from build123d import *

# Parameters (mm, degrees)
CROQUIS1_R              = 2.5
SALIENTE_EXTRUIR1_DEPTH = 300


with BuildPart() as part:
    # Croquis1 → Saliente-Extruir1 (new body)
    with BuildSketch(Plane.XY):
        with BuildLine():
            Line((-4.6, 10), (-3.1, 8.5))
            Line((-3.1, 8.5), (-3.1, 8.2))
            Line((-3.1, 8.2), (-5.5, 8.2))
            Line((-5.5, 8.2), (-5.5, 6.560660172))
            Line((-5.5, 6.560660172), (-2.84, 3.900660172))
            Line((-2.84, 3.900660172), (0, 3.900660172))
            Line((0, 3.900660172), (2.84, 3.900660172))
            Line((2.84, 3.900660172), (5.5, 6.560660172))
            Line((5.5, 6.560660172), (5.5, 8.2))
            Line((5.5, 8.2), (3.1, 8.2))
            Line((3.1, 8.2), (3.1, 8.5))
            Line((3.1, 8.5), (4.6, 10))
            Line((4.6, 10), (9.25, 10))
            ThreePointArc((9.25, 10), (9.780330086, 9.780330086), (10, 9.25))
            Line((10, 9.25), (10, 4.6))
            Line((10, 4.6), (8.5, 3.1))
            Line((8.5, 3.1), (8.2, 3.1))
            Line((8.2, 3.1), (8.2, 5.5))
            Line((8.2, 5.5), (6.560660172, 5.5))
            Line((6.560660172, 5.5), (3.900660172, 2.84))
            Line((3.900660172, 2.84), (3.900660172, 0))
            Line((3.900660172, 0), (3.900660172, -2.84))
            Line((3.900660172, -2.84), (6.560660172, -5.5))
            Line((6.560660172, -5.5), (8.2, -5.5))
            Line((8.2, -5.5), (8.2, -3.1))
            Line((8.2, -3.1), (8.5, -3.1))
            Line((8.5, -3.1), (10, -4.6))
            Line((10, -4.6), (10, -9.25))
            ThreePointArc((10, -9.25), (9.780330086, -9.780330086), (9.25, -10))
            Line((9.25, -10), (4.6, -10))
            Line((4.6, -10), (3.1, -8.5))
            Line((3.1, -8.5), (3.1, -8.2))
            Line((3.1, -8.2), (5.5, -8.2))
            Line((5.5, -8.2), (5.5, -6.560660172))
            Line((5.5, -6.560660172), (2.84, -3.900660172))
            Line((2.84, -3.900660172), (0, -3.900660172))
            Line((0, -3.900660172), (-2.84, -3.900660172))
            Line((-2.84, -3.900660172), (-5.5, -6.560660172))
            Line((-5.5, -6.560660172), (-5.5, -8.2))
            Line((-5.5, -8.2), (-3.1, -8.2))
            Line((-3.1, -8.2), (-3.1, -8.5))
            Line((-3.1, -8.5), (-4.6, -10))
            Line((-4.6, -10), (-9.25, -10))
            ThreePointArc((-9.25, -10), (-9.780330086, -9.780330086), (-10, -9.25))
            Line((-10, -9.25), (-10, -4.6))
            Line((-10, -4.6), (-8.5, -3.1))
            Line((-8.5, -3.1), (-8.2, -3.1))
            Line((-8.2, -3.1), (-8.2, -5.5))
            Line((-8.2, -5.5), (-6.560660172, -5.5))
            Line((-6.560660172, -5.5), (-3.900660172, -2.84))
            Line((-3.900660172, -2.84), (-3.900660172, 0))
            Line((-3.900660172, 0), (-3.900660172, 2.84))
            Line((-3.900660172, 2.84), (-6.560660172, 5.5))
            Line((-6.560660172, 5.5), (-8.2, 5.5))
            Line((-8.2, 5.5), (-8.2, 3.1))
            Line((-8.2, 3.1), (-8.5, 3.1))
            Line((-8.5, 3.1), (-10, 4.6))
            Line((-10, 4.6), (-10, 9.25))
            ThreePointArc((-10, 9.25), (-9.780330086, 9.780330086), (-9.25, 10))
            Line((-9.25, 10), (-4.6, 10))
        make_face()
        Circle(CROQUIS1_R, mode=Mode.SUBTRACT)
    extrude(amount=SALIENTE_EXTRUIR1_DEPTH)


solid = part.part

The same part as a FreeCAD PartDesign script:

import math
import FreeCAD as App
import Part
import Sketcher

V = App.Vector
Q = App.Units.Quantity

doc = App.newDocument("Part")
body = doc.addObject("PartDesign::Body", "Body")

# Sketch on XY plane
sketch1 = body.newObject("Sketcher::SketchObject", "Sketch")
sketch1.AttachmentSupport = (doc.getObject("XY_Plane"), [""])
sketch1.MapMode = "FlatFace"
sketch1.addGeometry([
    Part.LineSegment(V(-3.1, 8.5, 0), V(-4.6, 10, 0)),  # 0
    Part.LineSegment(V(-4.6, 10, 0), V(-9.25, 10, 0)),  # 1
    Part.ArcOfCircle(Part.Circle(V(-9.25, 9.25, 0), V(0, 0, 1), 0.75), math.radians(90), math.radians(180)),  # 2
    Part.LineSegment(V(-10, 9.25, 0), V(-10, 4.6, 0)),  # 3
    Part.LineSegment(V(-10, 4.6, 0), V(-8.5, 3.1, 0)),  # 4
    Part.LineSegment(V(-8.5, 3.1, 0), V(-8.2, 3.1, 0)),  # 5
    Part.LineSegment(V(-8.2, 3.1, 0), V(-8.2, 5.5, 0)),  # 6
    Part.LineSegment(V(-8.2, 5.5, 0), V(-6.56, 5.5, 0)),  # 7
    Part.LineSegment(V(-6.56, 5.5, 0), V(-3.9, 2.84, 0)),  # 8
    Part.LineSegment(V(-3.9, 2.84, 0), V(-3.9, -2.84, 0)),  # 9
    Part.LineSegment(V(-3.9, -2.84, 0), V(-6.56, -5.5, 0)),  # 10
    Part.LineSegment(V(-6.56, -5.5, 0), V(-8.2, -5.5, 0)),  # 11
    Part.LineSegment(V(-8.2, -5.5, 0), V(-8.2, -3.1, 0)),  # 12
    Part.LineSegment(V(-8.2, -3.1, 0), V(-8.5, -3.1, 0)),  # 13
    Part.LineSegment(V(-8.5, -3.1, 0), V(-10, -4.6, 0)),  # 14
    Part.LineSegment(V(-10, -4.6, 0), V(-10, -9.25, 0)),  # 15
    Part.ArcOfCircle(Part.Circle(V(-9.25, -9.25, 0), V(0, 0, 1), 0.75), math.radians(180), math.radians(270)),  # 16
    Part.LineSegment(V(-9.25, -10, 0), V(-4.6, -10, 0)),  # 17
    Part.LineSegment(V(-4.6, -10, 0), V(-3.1, -8.5, 0)),  # 18
    Part.LineSegment(V(-3.1, -8.5, 0), V(-3.1, -8.2, 0)),  # 19
    Part.LineSegment(V(-3.1, -8.2, 0), V(-5.5, -8.2, 0)),  # 20
    Part.LineSegment(V(-5.5, -8.2, 0), V(-5.5, -6.56, 0)),  # 21
    Part.LineSegment(V(-5.5, -6.56, 0), V(-2.84, -3.9, 0)),  # 22
    Part.LineSegment(V(-2.84, -3.9, 0), V(2.84, -3.9, 0)),  # 23
    Part.LineSegment(V(2.84, -3.9, 0), V(5.5, -6.56, 0)),  # 24
    Part.LineSegment(V(5.5, -6.56, 0), V(5.5, -8.2, 0)),  # 25
    Part.LineSegment(V(5.5, -8.2, 0), V(3.1, -8.2, 0)),  # 26
    Part.LineSegment(V(3.1, -8.2, 0), V(3.1, -8.5, 0)),  # 27
    Part.LineSegment(V(3.1, -8.5, 0), V(4.6, -10, 0)),  # 28
    Part.LineSegment(V(4.6, -10, 0), V(9.25, -10, 0)),  # 29
    Part.ArcOfCircle(Part.Circle(V(9.25, -9.25, 0), V(0, 0, 1), 0.75), math.radians(-90), math.radians(0)),  # 30
    Part.LineSegment(V(10, -9.25, 0), V(10, -4.6, 0)),  # 31
    Part.LineSegment(V(10, -4.6, 0), V(8.5, -3.1, 0)),  # 32
    Part.LineSegment(V(8.5, -3.1, 0), V(8.2, -3.1, 0)),  # 33
    Part.LineSegment(V(8.2, -3.1, 0), V(8.2, -5.5, 0)),  # 34
    Part.LineSegment(V(8.2, -5.5, 0), V(6.56, -5.5, 0)),  # 35
    Part.LineSegment(V(6.56, -5.5, 0), V(3.9, -2.84, 0)),  # 36
    Part.LineSegment(V(3.9, -2.84, 0), V(3.9, 2.84, 0)),  # 37
    Part.LineSegment(V(3.9, 2.84, 0), V(6.56, 5.5, 0)),  # 38
    Part.LineSegment(V(6.56, 5.5, 0), V(8.2, 5.5, 0)),  # 39
    Part.LineSegment(V(8.2, 5.5, 0), V(8.2, 3.1, 0)),  # 40
    Part.LineSegment(V(8.2, 3.1, 0), V(8.5, 3.1, 0)),  # 41
    Part.LineSegment(V(8.5, 3.1, 0), V(10, 4.6, 0)),  # 42
    Part.LineSegment(V(10, 4.6, 0), V(10, 9.25, 0)),  # 43
    Part.ArcOfCircle(Part.Circle(V(9.25, 9.25, 0), V(0, 0, 1), 0.75), math.radians(0), math.radians(90)),  # 44
    Part.LineSegment(V(9.25, 10, 0), V(4.6, 10, 0)),  # 45
    Part.LineSegment(V(4.6, 10, 0), V(3.1, 8.5, 0)),  # 46
    Part.LineSegment(V(3.1, 8.5, 0), V(3.1, 8.2, 0)),  # 47
    Part.LineSegment(V(3.1, 8.2, 0), V(5.5, 8.2, 0)),  # 48
    Part.LineSegment(V(5.5, 8.2, 0), V(5.5, 6.56, 0)),  # 49
    Part.LineSegment(V(5.5, 6.56, 0), V(2.84, 3.9, 0)),  # 50
    Part.LineSegment(V(2.84, 3.9, 0), V(-2.84, 3.9, 0)),  # 51
    Part.LineSegment(V(-2.84, 3.9, 0), V(-5.5, 6.56, 0)),  # 52
    Part.LineSegment(V(-5.5, 6.56, 0), V(-5.5, 8.2, 0)),  # 53
    Part.LineSegment(V(-5.5, 8.2, 0), V(-3.1, 8.2, 0)),  # 54
    Part.LineSegment(V(-3.1, 8.2, 0), V(-3.1, 8.5, 0)),  # 55
    Part.Circle(V(0, 0, 0), V(0, 0, 1), 2.5),  # 56
], False)
sketch1.addConstraint([
    Sketcher.Constraint("Coincident", 0, 2, 1, 1),
    Sketcher.Constraint("Tangent", 1, 2, 2, 1),
    Sketcher.Constraint("Tangent", 2, 2, 3, 1),
    Sketcher.Constraint("Coincident", 3, 2, 4, 1),
    Sketcher.Constraint("Coincident", 4, 2, 5, 1),
    Sketcher.Constraint("Coincident", 5, 2, 6, 1),
    Sketcher.Constraint("Coincident", 6, 2, 7, 1),
    Sketcher.Constraint("Coincident", 7, 2, 8, 1),
    Sketcher.Constraint("Coincident", 8, 2, 9, 1),
    Sketcher.Constraint("Coincident", 9, 2, 10, 1),
    Sketcher.Constraint("Coincident", 10, 2, 11, 1),
    Sketcher.Constraint("Coincident", 11, 2, 12, 1),
    Sketcher.Constraint("Coincident", 12, 2, 13, 1),
    Sketcher.Constraint("Coincident", 13, 2, 14, 1),
    Sketcher.Constraint("Coincident", 14, 2, 15, 1),
    Sketcher.Constraint("Tangent", 15, 2, 16, 1),
    Sketcher.Constraint("Tangent", 16, 2, 17, 1),
    Sketcher.Constraint("Coincident", 17, 2, 18, 1),
    Sketcher.Constraint("Coincident", 18, 2, 19, 1),
    Sketcher.Constraint("Coincident", 19, 2, 20, 1),
    Sketcher.Constraint("Coincident", 20, 2, 21, 1),
    Sketcher.Constraint("Coincident", 21, 2, 22, 1),
    Sketcher.Constraint("Coincident", 22, 2, 23, 1),
    Sketcher.Constraint("Coincident", 23, 2, 24, 1),
    Sketcher.Constraint("Coincident", 24, 2, 25, 1),
    Sketcher.Constraint("Coincident", 25, 2, 26, 1),
    Sketcher.Constraint("Coincident", 26, 2, 27, 1),
    Sketcher.Constraint("Coincident", 27, 2, 28, 1),
    Sketcher.Constraint("Coincident", 28, 2, 29, 1),
    Sketcher.Constraint("Tangent", 29, 2, 30, 1),
    Sketcher.Constraint("Tangent", 30, 2, 31, 1),
    Sketcher.Constraint("Coincident", 31, 2, 32, 1),
    Sketcher.Constraint("Coincident", 32, 2, 33, 1),
    Sketcher.Constraint("Coincident", 33, 2, 34, 1),
    Sketcher.Constraint("Coincident", 34, 2, 35, 1),
    Sketcher.Constraint("Coincident", 35, 2, 36, 1),
    Sketcher.Constraint("Coincident", 36, 2, 37, 1),
    Sketcher.Constraint("Coincident", 37, 2, 38, 1),
    Sketcher.Constraint("Coincident", 38, 2, 39, 1),
    Sketcher.Constraint("Coincident", 39, 2, 40, 1),
    Sketcher.Constraint("Coincident", 40, 2, 41, 1),
    Sketcher.Constraint("Coincident", 41, 2, 42, 1),
    Sketcher.Constraint("Coincident", 42, 2, 43, 1),
    Sketcher.Constraint("Tangent", 43, 2, 44, 1),
    Sketcher.Constraint("Tangent", 44, 2, 45, 1),
    Sketcher.Constraint("Coincident", 45, 2, 46, 1),
    Sketcher.Constraint("Coincident", 46, 2, 47, 1),
    Sketcher.Constraint("Coincident", 47, 2, 48, 1),
    Sketcher.Constraint("Coincident", 48, 2, 49, 1),
    Sketcher.Constraint("Coincident", 49, 2, 50, 1),
    Sketcher.Constraint("Coincident", 50, 2, 51, 1),
    Sketcher.Constraint("Coincident", 51, 2, 52, 1),
    Sketcher.Constraint("Coincident", 52, 2, 53, 1),
    Sketcher.Constraint("Coincident", 53, 2, 54, 1),
    Sketcher.Constraint("Coincident", 54, 2, 55, 1),
    Sketcher.Constraint("Coincident", 55, 2, 0, 1),
    Sketcher.Constraint("Horizontal", 1),
    Sketcher.Constraint("Vertical", 3),
    Sketcher.Constraint("Horizontal", 5),
    Sketcher.Constraint("Vertical", 6),
    Sketcher.Constraint("Horizontal", 7),
    Sketcher.Constraint("Vertical", 9),
    Sketcher.Constraint("Horizontal", 11),
    Sketcher.Constraint("Vertical", 12),
    Sketcher.Constraint("Horizontal", 13),
    Sketcher.Constraint("Vertical", 15),
    Sketcher.Constraint("Horizontal", 17),
    Sketcher.Constraint("Vertical", 19),
    Sketcher.Constraint("Horizontal", 20),
    Sketcher.Constraint("Vertical", 21),
    Sketcher.Constraint("Horizontal", 23),
    Sketcher.Constraint("Vertical", 25),
    Sketcher.Constraint("Horizontal", 26),
    Sketcher.Constraint("Vertical", 27),
    Sketcher.Constraint("Horizontal", 29),
    Sketcher.Constraint("Vertical", 31),
    Sketcher.Constraint("Horizontal", 33),
    Sketcher.Constraint("Vertical", 34),
    Sketcher.Constraint("Horizontal", 35),
    Sketcher.Constraint("Vertical", 37),
    Sketcher.Constraint("Horizontal", 39),
    Sketcher.Constraint("Vertical", 40),
    Sketcher.Constraint("Horizontal", 41),
    Sketcher.Constraint("Vertical", 43),
    Sketcher.Constraint("Horizontal", 45),
    Sketcher.Constraint("Vertical", 47),
    Sketcher.Constraint("Horizontal", 48),
    Sketcher.Constraint("Vertical", 49),
    Sketcher.Constraint("Horizontal", 51),
    Sketcher.Constraint("Vertical", 53),
    Sketcher.Constraint("Horizontal", 54),
    Sketcher.Constraint("Vertical", 55),
    Sketcher.Constraint("Coincident", 56, 3, -1, 1),
    Sketcher.Constraint("Equal", 2, 16),
    Sketcher.Constraint("Equal", 16, 30),
    Sketcher.Constraint("Equal", 30, 44),
    Sketcher.Constraint("Symmetric", 2, 3, 30, 3, -1, 1),
    Sketcher.Constraint("Symmetric", 16, 3, 44, 3, -1, 1),
    Sketcher.Constraint("Symmetric", 4, 2, 32, 2, -1, 1),
    Sketcher.Constraint("Symmetric", 6, 2, 34, 2, -1, 1),
    Sketcher.Constraint("Symmetric", 8, 2, 36, 2, -1, 1),
    Sketcher.Constraint("Symmetric", 10, 2, 38, 2, -1, 1),
    Sketcher.Constraint("Symmetric", 12, 2, 40, 2, -1, 1),
    Sketcher.Constraint("Symmetric", 18, 2, 46, 2, -1, 1),
    Sketcher.Constraint("Symmetric", 20, 2, 48, 2, -1, 1),
    Sketcher.Constraint("Symmetric", 22, 2, 50, 2, -1, 1),
    Sketcher.Constraint("Symmetric", 24, 2, 52, 2, -1, 1),
    Sketcher.Constraint("Symmetric", 26, 2, 54, 2, -1, 1),
    Sketcher.Constraint("Symmetric", 16, 3, 30, 3, -2),
    Sketcher.Constraint("Symmetric", 21, 2, 24, 2, -2),
    Sketcher.Constraint("Symmetric", 19, 2, 26, 2, -2),
    Sketcher.Constraint("Symmetric", 13, 2, 32, 2, -2),
    Sketcher.Constraint("Symmetric", 11, 2, 34, 2, -2),
    Sketcher.Constraint("Parallel", 0, 4),
    Sketcher.Constraint("Parallel", 4, 8),
    Sketcher.Constraint("Perpendicular", 8, 10),
    Sketcher.Constraint("Parallel", 10, 14),
    Sketcher.Constraint("Parallel", 14, 18),
    Sketcher.Constraint("Parallel", 18, 22),
    Sketcher.Constraint("Perpendicular", 22, 24),
    Sketcher.Constraint("Parallel", 24, 28),
    Sketcher.Constraint("Parallel", 28, 32),
    Sketcher.Constraint("Parallel", 32, 36),
    Sketcher.Constraint("Perpendicular", 36, 38),
    Sketcher.Constraint("Parallel", 38, 42),
    Sketcher.Constraint("Parallel", 42, 46),
    Sketcher.Constraint("Parallel", 46, 50),
    Sketcher.Constraint("Perpendicular", 50, 52),
    Sketcher.Constraint("Horizontal", 18, 2, 27, 2),
    Sketcher.Constraint("Horizontal", 14, 2, 31, 2),
    Sketcher.Constraint("Horizontal", 9, 2, 36, 2),
    Sketcher.Constraint("Horizontal", 3, 2, 42, 2),
    Sketcher.Constraint("Horizontal", 46, 2, 55, 2),
    Sketcher.Constraint("Equal", 45, 3),
    Sketcher.Constraint("Equal", 54, 6),
    Sketcher.Constraint("Equal", 51, 9),
    Sketcher.Constraint("Equal", 41, 19),
    Sketcher.Constraint("Equal", 39, 21),
    Sketcher.Constraint("Equal", 0, 4),
    Sketcher.Constraint("Equal", 10, 22),
    Sketcher.Constraint("Diameter", 56, Q("5 mm")),
    Sketcher.Constraint("Radius", 2, Q("0.75 mm")),
    Sketcher.Constraint("DistanceX", 5, 1, 5, 2, Q("0.3 mm")),
    Sketcher.Constraint("DistanceX", 20, 2, 20, 1, Q("2.4 mm")),
    Sketcher.Constraint("DistanceY", -1, 1, 0, 2, Q("10 mm")),
    Sketcher.Constraint("DistanceX", 1, 2, 1, 1, Q("4.65 mm")),
    Sketcher.Constraint("DistanceX", 23, 1, 23, 2, Q("5.68 mm")),
    Sketcher.Constraint("DistanceX", 4, 2, -1, 1, Q("8.5 mm")),
    Sketcher.Constraint("DistanceX", 7, 1, 7, 2, Q("1.63934 mm")),
])
pad1 = body.newObject("PartDesign::Pad", "Pad")
pad1.Profile = sketch1
pad1.Length = 300

doc.recompute()
